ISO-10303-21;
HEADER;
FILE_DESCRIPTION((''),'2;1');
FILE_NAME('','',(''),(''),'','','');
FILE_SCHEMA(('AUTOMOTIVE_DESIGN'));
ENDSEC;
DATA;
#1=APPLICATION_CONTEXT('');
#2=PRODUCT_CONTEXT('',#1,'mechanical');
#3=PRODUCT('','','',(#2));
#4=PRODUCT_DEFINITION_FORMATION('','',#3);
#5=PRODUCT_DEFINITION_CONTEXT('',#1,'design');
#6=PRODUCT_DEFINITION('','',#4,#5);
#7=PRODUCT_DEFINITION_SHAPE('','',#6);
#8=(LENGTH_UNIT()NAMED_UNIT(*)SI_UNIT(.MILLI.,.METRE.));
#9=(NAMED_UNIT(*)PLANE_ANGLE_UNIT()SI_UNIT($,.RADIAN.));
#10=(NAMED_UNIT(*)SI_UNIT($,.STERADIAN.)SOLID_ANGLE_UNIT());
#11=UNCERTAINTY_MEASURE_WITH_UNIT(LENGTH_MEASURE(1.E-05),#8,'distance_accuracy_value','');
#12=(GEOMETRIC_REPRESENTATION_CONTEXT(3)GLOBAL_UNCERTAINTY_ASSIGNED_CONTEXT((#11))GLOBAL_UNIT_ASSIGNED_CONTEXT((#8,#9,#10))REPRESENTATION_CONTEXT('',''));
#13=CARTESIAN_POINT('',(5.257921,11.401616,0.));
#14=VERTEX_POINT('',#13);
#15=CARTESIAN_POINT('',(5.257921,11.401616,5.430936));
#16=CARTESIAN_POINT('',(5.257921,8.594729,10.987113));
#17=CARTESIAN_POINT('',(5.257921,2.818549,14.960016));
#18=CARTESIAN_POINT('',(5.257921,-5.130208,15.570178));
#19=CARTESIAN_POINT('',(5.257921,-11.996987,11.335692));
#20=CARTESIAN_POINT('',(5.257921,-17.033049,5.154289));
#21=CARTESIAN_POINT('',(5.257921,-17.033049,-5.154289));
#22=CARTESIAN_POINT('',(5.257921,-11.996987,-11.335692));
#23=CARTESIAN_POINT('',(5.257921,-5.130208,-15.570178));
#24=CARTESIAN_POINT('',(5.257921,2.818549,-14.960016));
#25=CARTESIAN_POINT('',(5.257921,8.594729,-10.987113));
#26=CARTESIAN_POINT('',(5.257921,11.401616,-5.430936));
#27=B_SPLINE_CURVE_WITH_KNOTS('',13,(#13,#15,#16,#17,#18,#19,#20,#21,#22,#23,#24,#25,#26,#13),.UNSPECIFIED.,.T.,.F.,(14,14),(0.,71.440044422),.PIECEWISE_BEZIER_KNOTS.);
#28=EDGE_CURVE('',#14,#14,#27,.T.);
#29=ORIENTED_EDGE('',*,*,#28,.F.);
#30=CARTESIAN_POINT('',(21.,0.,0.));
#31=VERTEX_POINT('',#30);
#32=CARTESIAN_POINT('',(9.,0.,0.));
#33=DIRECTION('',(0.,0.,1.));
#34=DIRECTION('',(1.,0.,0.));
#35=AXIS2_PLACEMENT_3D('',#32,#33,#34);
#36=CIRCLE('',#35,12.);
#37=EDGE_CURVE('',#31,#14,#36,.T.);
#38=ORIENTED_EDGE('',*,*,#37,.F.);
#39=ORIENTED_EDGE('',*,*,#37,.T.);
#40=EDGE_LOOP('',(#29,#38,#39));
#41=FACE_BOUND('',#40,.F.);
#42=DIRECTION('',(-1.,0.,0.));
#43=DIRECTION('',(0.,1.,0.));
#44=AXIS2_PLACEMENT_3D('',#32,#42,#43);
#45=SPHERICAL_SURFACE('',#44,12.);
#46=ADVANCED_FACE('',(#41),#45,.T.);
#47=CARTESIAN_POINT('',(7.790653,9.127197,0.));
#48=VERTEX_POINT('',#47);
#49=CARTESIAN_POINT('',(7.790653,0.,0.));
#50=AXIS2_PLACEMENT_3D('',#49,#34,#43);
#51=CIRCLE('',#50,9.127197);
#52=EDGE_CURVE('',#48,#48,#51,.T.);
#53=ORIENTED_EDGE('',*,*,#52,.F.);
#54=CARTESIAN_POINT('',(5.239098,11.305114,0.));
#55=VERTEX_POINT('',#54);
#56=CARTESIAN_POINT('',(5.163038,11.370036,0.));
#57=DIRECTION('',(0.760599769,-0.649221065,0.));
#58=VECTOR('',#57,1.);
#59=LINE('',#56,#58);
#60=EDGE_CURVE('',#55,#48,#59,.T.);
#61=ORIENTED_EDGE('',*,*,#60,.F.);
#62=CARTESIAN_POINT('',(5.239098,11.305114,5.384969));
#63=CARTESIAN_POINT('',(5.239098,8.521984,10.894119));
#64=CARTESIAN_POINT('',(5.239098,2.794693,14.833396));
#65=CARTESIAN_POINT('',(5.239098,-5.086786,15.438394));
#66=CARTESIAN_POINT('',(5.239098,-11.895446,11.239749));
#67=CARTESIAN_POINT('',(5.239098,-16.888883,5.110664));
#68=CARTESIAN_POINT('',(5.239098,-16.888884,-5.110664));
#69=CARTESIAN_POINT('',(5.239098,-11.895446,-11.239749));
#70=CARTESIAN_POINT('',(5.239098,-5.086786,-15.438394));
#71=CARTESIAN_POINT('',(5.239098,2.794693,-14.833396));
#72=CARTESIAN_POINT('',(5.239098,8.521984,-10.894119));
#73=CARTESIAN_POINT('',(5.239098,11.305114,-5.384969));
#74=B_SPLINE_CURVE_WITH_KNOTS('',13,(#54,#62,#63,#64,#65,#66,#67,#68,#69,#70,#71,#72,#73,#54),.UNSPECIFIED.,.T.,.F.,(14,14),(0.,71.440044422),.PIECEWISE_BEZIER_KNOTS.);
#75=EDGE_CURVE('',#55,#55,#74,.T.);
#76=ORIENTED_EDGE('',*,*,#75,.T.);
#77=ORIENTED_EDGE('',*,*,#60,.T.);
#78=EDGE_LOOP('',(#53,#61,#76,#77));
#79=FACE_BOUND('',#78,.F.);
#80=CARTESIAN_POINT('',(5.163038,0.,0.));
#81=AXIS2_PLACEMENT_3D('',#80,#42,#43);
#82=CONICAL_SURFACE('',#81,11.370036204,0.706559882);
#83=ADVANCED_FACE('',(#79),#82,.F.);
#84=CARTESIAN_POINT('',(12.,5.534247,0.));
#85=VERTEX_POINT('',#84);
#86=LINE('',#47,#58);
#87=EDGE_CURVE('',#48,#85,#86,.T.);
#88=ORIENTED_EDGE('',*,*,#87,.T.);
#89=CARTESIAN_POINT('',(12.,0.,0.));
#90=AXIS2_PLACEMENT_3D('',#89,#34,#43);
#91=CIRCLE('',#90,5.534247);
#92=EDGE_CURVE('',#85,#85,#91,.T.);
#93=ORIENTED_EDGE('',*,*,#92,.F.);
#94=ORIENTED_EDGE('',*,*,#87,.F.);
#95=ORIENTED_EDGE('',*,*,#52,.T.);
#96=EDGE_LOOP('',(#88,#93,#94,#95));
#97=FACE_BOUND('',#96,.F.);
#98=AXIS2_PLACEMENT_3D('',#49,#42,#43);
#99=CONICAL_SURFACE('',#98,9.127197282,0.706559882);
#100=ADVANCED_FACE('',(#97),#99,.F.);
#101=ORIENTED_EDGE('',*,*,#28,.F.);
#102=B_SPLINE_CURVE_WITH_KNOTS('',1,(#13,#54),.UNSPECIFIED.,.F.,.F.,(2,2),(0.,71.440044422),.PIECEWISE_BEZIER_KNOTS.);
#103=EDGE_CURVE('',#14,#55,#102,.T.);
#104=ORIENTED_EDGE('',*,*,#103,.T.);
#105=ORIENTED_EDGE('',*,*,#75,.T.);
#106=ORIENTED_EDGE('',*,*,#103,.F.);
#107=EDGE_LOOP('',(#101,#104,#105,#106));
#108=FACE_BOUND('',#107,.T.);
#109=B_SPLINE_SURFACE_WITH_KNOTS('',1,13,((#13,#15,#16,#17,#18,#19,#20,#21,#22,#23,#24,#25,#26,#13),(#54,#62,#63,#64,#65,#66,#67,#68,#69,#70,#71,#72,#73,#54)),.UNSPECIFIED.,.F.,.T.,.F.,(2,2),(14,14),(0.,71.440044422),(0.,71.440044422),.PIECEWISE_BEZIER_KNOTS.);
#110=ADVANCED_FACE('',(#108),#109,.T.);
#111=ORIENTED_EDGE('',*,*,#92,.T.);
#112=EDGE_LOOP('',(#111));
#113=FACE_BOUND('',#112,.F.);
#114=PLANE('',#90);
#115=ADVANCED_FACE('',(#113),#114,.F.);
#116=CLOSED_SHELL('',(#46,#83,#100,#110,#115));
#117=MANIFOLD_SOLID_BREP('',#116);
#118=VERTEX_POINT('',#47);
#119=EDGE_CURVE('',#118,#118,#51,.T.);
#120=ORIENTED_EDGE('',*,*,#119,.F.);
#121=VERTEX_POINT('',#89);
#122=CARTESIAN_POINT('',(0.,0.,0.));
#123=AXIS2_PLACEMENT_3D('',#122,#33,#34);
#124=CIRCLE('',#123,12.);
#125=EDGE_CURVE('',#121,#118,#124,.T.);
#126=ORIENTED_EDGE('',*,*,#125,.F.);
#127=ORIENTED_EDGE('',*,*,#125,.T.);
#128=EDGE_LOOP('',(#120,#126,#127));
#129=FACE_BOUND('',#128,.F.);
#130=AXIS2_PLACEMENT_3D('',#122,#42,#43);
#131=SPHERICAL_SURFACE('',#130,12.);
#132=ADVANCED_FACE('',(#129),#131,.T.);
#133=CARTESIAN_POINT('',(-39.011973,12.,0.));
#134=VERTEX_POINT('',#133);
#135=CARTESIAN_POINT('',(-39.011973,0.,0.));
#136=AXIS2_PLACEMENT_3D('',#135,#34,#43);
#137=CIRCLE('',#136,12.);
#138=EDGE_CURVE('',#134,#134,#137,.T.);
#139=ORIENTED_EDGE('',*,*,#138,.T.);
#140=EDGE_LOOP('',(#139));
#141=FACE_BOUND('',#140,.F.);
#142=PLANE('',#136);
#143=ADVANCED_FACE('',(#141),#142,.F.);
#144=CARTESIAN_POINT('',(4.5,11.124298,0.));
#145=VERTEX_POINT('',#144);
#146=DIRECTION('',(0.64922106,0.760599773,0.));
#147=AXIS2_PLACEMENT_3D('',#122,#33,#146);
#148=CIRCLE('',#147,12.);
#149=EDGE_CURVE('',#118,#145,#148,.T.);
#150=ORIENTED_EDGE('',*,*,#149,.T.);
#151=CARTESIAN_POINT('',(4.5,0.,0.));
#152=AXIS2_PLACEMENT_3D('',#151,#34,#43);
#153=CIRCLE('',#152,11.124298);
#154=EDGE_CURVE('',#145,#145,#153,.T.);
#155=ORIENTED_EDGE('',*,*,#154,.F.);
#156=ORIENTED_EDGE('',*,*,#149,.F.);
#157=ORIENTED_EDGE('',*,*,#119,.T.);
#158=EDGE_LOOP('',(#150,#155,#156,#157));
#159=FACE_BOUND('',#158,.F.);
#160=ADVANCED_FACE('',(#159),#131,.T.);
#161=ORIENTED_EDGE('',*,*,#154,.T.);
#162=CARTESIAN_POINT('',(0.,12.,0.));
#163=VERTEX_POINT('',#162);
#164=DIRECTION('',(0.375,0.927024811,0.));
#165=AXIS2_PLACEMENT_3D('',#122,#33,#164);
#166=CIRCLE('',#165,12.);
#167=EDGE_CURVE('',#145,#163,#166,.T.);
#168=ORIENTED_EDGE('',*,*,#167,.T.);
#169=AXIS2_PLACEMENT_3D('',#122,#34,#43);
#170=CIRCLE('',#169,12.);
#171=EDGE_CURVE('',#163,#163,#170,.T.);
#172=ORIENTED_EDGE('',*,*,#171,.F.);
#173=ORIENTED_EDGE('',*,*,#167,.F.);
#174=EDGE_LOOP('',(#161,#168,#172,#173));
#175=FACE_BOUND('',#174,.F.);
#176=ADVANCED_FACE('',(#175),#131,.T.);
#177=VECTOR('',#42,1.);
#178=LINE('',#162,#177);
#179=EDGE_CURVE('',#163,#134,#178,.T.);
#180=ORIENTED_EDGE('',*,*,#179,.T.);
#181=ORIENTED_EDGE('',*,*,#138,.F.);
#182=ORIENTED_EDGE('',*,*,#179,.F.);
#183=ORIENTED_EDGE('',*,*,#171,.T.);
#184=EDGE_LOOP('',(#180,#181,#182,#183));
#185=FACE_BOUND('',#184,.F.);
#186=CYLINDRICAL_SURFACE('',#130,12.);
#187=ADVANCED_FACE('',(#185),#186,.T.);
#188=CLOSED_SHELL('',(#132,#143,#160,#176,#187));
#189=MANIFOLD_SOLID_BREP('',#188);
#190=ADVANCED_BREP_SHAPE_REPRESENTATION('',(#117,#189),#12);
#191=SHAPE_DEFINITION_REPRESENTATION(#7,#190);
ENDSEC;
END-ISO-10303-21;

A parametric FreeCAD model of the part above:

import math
import FreeCAD as App
import Part
import Sketcher


def edges_at(feature, points):
    """Names of the edges that pass closest to the given points."""
    edges = feature.Shape.Edges
    near = lambda p: min(range(len(edges)), key=lambda i: edges[i].distToShape(Part.Vertex(*p))[0])
    return sorted({f"Edge{near(p) + 1}" for p in points})

doc = App.newDocument("Part")
body = doc.addObject("PartDesign::Body", "Body")

sketch1 = doc.addObject("Sketcher::SketchObject", "Sketch")
body.addObject(sketch1)
sketch1.AttachmentSupport = (doc.XY_Plane, [""])
sketch1.MapMode = "FlatFace"
sketch1.addGeometry([
    Part.LineSegment(App.Vector(-39, 0, 0), App.Vector(12, 0, 0)),
    Part.ArcOfCircle(Part.Circle(App.Vector(0, 0, 0), App.Vector(0, 0, 1), 12), math.radians(0), math.radians(50)),
    Part.ArcOfCircle(Part.Circle(App.Vector(0, 0, 0), App.Vector(0, 0, 1), 12), math.radians(49.52), math.radians(67.98)),
    Part.ArcOfCircle(Part.Circle(App.Vector(0, 0, 0), App.Vector(0, 0, 1), 12), math.radians(68), math.radians(90)),
    Part.LineSegment(App.Vector(0, 12, 0), App.Vector(-39, 12, 0)),
    Part.LineSegment(App.Vector(-39, 12, 0), App.Vector(-39, 0, 0)),
], False)
sketch1.addConstraint([
    Sketcher.Constraint("Coincident", 0, 2, 1, 1),
    Sketcher.Constraint("Tangent", 1, 2, 2, 1),
    Sketcher.Constraint("Tangent", 2, 2, 3, 1),
    Sketcher.Constraint("Tangent", 3, 2, 4, 1),
    Sketcher.Constraint("Coincident", 4, 2, 5, 1),
    Sketcher.Constraint("Coincident", 5, 2, 0, 1),
    Sketcher.Constraint("Horizontal", 0),
    Sketcher.Constraint("Horizontal", 4),
    Sketcher.Constraint("Vertical", 5),
    Sketcher.Constraint("Coincident", 1, 3, -1, 1),
    Sketcher.Constraint("Coincident", 3, 3, -1, 1),
    Sketcher.Constraint("PointOnObject", 0, 2, -1),
    Sketcher.Constraint("Radius", 1, 12.0),
    Sketcher.Constraint("DistanceX", -1, 1, 2, 2, 4.5),
    Sketcher.Constraint("DistanceY", 1, 2, 2, 2, 1.9971),
    Sketcher.Constraint("DistanceX", 0, 1, 0, 2, 51.011973),
])
revolution = doc.addObject("PartDesign::Revolution", "Revolution")
body.addObject(revolution)
revolution.Profile = sketch1
revolution.ReferenceAxis = (sketch1, ["H_Axis"])
revolution.Angle = 360
body2 = doc.addObject("PartDesign::Body", "Body001")

sketch2 = doc.addObject("Sketcher::SketchObject", "Sketch001")
body2.addObject(sketch2)
sketch2.AttachmentSupport = (doc.getObject("XY_Plane001"), [""])
sketch2.MapMode = "FlatFace"
sketch2.addGeometry([
    Part.LineSegment(App.Vector(12, 5.5, 0), App.Vector(12, 0, 0)),
    Part.LineSegment(App.Vector(12, 0, 0), App.Vector(21, 0, 0)),
    Part.ArcOfCircle(Part.Circle(App.Vector(9, 0, 0), App.Vector(0, 0, 1), 12), math.radians(0), math.radians(109)),
    Part.LineSegment(App.Vector(5.2, 11.4, 0), App.Vector(7.8, 9.1, 0)),
    Part.LineSegment(App.Vector(7.8, 9.1, 0), App.Vector(12, 5.5, 0)),
], False)
sketch2.addConstraint([
    Sketcher.Constraint("Coincident", 0, 2, 1, 1),
    Sketcher.Constraint("Coincident", 1, 2, 2, 1),
    Sketcher.Constraint("Coincident", 2, 2, 3, 1),
    Sketcher.Constraint("Coincident", 3, 2, 4, 1),
    Sketcher.Constraint("Coincident", 4, 2, 0, 1),
    Sketcher.Constraint("Vertical", 0),
    Sketcher.Constraint("Horizontal", 1),
    Sketcher.Constraint("PointOnObject", 2, 3, -1),
    Sketcher.Constraint("PointOnObject", 0, 2, -1),
    Sketcher.Constraint("Parallel", 3, 4),
    Sketcher.Constraint("Radius", 2, 12.0),
    Sketcher.Constraint("DistanceX", 1, 1, 1, 2, 9.0),
    Sketcher.Constraint("DistanceX", -1, 1, 2, 3, 9.0),
    Sketcher.Constraint("Distance", 3, 3.454661),
    Sketcher.Constraint("DistanceY", 0, 2, 0, 1, 5.534247),
    Sketcher.Constraint("DistanceX", -1, 1, 2, 2, 5.163038),
])
revolution2 = doc.addObject("PartDesign::Revolution", "Revolution001")
body2.addObject(revolution2)
revolution2.Profile = sketch2
revolution2.ReferenceAxis = (sketch2, ["H_Axis"])
revolution2.Angle = 360
doc.recompute()

chamfer = doc.addObject("PartDesign::Chamfer", "Chamfer")
body2.addObject(chamfer)
chamfer.Base = (revolution2, edges_at(revolution2, [(5.163, -11.37, 0)]))
chamfer.Size = 0.1

doc.recompute()
